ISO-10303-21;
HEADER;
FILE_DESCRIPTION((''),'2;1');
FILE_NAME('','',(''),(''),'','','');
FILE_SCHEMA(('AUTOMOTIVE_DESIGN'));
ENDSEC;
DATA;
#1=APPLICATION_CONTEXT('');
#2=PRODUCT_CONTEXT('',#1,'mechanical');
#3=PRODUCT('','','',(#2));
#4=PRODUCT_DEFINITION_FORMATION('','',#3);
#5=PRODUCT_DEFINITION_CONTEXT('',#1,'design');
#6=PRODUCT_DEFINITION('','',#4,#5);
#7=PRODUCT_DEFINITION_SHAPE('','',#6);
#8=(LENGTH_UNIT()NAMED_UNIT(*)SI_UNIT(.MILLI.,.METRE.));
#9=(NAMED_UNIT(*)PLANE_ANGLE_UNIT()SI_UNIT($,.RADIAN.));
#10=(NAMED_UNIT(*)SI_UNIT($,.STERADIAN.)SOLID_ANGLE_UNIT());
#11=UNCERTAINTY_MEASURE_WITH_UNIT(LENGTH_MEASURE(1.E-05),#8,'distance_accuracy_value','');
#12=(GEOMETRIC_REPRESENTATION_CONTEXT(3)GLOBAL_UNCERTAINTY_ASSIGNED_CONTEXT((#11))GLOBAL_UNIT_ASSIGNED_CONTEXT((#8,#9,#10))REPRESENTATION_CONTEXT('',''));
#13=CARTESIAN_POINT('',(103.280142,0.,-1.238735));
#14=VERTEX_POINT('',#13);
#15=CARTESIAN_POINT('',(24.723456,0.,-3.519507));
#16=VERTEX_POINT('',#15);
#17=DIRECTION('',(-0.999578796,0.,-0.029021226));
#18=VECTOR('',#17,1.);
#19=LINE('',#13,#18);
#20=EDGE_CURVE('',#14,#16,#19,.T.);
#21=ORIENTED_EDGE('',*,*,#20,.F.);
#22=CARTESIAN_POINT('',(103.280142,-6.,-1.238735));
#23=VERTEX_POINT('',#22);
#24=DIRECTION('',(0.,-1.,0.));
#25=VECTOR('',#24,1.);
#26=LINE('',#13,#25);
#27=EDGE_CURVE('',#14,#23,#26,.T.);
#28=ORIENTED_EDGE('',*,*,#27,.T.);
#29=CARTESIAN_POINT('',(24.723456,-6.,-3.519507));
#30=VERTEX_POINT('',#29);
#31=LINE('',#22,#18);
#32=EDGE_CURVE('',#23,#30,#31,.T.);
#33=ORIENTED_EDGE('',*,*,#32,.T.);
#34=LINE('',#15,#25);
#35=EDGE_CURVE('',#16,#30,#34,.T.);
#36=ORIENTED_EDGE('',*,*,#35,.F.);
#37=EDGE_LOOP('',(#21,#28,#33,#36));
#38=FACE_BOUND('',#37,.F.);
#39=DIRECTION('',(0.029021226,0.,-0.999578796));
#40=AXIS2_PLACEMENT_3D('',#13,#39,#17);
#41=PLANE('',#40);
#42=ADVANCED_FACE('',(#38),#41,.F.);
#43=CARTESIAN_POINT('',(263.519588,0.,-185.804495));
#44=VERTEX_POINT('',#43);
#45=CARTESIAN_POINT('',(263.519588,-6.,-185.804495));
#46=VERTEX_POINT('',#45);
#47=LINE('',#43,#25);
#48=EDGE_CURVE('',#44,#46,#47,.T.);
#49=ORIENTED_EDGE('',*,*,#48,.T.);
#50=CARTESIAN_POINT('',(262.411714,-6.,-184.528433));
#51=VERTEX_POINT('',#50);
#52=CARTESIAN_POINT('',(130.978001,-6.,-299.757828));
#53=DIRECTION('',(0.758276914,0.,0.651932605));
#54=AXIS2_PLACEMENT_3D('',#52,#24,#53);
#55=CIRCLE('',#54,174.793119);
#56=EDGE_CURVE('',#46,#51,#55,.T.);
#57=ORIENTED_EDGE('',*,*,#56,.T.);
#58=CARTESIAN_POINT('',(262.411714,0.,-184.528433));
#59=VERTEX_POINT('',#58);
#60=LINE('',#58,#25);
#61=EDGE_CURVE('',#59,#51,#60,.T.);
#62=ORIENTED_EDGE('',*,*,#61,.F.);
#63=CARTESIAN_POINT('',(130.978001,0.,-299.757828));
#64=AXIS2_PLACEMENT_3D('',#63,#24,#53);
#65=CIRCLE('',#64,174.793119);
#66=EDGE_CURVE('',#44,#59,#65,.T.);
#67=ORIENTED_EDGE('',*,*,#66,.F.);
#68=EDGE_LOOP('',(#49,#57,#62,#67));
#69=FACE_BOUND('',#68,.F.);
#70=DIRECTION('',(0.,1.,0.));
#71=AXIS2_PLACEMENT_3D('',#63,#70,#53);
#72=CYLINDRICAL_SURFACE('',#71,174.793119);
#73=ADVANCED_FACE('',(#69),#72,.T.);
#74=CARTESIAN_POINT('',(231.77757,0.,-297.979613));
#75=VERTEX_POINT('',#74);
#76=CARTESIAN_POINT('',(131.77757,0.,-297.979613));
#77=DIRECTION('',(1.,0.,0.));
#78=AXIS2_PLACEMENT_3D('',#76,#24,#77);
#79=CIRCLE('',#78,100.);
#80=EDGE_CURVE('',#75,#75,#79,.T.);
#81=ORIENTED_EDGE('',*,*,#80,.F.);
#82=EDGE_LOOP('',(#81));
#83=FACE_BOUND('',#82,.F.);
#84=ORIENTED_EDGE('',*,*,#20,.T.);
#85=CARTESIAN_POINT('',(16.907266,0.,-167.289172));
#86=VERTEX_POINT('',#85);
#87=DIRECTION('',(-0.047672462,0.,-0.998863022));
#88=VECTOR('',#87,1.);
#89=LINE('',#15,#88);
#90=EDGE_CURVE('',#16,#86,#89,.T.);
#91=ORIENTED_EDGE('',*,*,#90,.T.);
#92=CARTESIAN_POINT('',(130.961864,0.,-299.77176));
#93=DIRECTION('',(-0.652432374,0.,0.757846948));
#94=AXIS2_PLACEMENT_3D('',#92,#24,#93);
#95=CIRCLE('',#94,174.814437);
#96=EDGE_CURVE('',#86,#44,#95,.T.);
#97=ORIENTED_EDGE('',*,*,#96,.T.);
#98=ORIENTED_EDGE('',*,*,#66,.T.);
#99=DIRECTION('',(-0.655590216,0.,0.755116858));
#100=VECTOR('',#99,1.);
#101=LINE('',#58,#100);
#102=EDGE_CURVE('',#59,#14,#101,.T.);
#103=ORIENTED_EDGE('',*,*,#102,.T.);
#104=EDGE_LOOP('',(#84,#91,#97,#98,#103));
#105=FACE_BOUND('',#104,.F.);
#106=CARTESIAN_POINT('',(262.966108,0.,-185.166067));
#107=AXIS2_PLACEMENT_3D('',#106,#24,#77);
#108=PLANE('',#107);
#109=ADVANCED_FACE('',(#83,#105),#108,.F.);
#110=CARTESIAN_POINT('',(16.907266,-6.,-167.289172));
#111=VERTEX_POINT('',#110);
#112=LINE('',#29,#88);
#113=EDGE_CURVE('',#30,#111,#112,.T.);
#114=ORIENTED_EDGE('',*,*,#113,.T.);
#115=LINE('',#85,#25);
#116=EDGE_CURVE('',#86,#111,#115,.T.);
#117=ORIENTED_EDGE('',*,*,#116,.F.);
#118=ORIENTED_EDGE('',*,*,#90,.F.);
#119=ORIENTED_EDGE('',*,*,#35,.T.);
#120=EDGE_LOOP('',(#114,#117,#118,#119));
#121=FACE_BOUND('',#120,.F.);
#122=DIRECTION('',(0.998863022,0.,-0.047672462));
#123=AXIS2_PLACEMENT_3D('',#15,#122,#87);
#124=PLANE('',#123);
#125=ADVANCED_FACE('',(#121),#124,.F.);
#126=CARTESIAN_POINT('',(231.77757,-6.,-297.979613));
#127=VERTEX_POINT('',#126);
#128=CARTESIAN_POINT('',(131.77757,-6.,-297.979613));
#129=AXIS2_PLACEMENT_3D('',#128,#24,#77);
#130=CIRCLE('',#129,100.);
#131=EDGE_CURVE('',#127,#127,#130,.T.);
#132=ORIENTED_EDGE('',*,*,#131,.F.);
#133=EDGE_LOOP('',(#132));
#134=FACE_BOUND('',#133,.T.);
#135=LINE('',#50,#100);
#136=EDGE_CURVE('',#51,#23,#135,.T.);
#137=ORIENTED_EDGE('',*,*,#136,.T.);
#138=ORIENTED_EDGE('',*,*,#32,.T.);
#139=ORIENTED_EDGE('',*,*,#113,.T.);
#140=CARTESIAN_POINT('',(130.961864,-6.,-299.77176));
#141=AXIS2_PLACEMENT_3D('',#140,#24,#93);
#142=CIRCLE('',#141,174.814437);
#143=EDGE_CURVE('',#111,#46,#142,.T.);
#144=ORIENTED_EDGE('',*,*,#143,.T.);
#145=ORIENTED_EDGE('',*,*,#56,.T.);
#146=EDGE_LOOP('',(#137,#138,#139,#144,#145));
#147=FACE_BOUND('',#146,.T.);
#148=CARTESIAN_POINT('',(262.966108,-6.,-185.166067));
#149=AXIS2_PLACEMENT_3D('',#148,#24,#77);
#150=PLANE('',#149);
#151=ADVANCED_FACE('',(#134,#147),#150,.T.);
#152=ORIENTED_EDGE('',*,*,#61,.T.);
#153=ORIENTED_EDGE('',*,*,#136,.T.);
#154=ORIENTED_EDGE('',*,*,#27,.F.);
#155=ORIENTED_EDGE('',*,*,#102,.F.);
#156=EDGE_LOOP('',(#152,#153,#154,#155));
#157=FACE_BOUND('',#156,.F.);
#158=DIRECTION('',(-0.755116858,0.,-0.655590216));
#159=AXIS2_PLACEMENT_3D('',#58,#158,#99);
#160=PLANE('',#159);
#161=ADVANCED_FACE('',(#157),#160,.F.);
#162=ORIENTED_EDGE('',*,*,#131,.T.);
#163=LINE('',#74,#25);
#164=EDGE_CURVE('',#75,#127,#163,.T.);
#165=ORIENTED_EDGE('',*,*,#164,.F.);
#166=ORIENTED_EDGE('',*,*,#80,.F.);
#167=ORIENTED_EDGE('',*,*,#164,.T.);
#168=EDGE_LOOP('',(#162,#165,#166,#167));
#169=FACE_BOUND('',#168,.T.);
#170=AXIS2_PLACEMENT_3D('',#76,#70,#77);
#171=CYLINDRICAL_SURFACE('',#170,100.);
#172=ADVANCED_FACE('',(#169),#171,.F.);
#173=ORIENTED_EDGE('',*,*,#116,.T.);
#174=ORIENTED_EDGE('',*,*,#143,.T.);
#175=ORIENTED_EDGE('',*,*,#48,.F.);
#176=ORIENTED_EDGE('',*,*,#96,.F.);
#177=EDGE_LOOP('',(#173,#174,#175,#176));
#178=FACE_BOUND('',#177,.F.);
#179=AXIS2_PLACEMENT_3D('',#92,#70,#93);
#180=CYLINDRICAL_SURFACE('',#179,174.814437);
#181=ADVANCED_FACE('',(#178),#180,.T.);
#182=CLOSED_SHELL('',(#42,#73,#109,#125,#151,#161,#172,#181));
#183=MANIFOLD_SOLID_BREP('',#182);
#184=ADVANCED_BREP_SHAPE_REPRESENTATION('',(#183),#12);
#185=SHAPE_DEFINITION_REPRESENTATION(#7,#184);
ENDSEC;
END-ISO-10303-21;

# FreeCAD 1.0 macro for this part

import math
import FreeCAD as App
import Part
import Sketcher
from FreeCAD import Vector
Q = App.Units.Quantity

doc = App.newDocument("Part")
body = doc.addObject("PartDesign::Body", "Body")

# Sketch on XZ plane
sketch1 = body.newObject("Sketcher::SketchObject", "Sketch")
sketch1.AttachmentSupport = (doc.getObject("XZ_Plane"), [""])
sketch1.MapMode = "FlatFace"
sketch1.addGeometry(Part.ArcOfCircle(Part.Circle(Vector(130.978001, -299.757828, 0), Vector(0, 0, 1), 174.793119), math.radians(40.687471), math.radians(41.241405)), False)
sketch1.addGeometry(Part.LineSegment(Vector(262.411714, -184.528433, 0), Vector(103.280142, -1.238735, 0)), False)
sketch1.addGeometry(Part.LineSegment(Vector(103.280142, -1.238735, 0), Vector(24.723456, -3.519507, 0)), False)
sketch1.addGeometry(Part.LineSegment(Vector(24.723456, -3.519507, 0), Vector(16.907266, -167.289172, 0)), False)
sketch1.addGeometry(Part.ArcOfCircle(Part.Circle(Vector(130.961864, -299.77176, 0), Vector(0, 0, 1), 174.814437), math.radians(130.725245), math.radians(400.687485)), False)
sketch1.addGeometry(Part.Circle(Vector(131.77757, -297.979613, 0), Vector(0, 0, 1), 100), False)
sketch1.addConstraint(Sketcher.Constraint("Coincident", 0, 2, 1, 1))
sketch1.addConstraint(Sketcher.Constraint("Coincident", 1, 2, 2, 1))
sketch1.addConstraint(Sketcher.Constraint("Coincident", 2, 2, 3, 1))
sketch1.addConstraint(Sketcher.Constraint("Coincident", 3, 2, 4, 1))
sketch1.addConstraint(Sketcher.Constraint("Coincident", 4, 2, 0, 1))
sketch1.addConstraint(Sketcher.Constraint("Diameter", 5, Q("200 mm")))
sketch1.addConstraint(Sketcher.Constraint("Radius", 0, Q("174.793119 mm")))
sketch1.addConstraint(Sketcher.Constraint("DistanceX", -1, 1, 0, 3, Q("130.978001 mm")))
sketch1.addConstraint(Sketcher.Constraint("Radius", 4, Q("174.814437 mm")))
sketch1.addConstraint(Sketcher.Constraint("DistanceY", 0, 2, 1, 2, Q("183.289698 mm")))
sketch1.addConstraint(Sketcher.Constraint("DistanceX", 3, 2, 4, 3, Q("114.054598 mm")))
sketch1.addConstraint(Sketcher.Constraint("Distance", 2, Q("78.589788 mm")))
sketch1.addConstraint(Sketcher.Constraint("Distance", 3, Q("163.956079 mm")))
sketch1.addConstraint(Sketcher.Constraint("DistanceY", 0, 3, -1, 1, Q("299.757828 mm")))
sketch1.addConstraint(Sketcher.Constraint("DistanceY", 4, 3, -1, 1, Q("299.77176 mm")))
sketch1.addConstraint(Sketcher.Constraint("DistanceX", -1, 1, 5, 3, Q("131.77757 mm")))
sketch1.addConstraint(Sketcher.Constraint("DistanceX", -1, 1, 1, 2, Q("103.280142 mm")))
sketch1.addConstraint(Sketcher.Constraint("DistanceX", -1, 1, 4, 2, Q("263.519588 mm")))
sketch1.addConstraint(Sketcher.Constraint("DistanceY", 5, 3, 0, 2, Q("113.45118 mm")))
sketch1.addConstraint(Sketcher.Constraint("DistanceX", 4, 3, 0, 2, Q("131.44985 mm")))
pad1 = body.newObject("PartDesign::Pad", "Pad")
pad1.Profile = sketch1
pad1.Length = 6

doc.recompute()
